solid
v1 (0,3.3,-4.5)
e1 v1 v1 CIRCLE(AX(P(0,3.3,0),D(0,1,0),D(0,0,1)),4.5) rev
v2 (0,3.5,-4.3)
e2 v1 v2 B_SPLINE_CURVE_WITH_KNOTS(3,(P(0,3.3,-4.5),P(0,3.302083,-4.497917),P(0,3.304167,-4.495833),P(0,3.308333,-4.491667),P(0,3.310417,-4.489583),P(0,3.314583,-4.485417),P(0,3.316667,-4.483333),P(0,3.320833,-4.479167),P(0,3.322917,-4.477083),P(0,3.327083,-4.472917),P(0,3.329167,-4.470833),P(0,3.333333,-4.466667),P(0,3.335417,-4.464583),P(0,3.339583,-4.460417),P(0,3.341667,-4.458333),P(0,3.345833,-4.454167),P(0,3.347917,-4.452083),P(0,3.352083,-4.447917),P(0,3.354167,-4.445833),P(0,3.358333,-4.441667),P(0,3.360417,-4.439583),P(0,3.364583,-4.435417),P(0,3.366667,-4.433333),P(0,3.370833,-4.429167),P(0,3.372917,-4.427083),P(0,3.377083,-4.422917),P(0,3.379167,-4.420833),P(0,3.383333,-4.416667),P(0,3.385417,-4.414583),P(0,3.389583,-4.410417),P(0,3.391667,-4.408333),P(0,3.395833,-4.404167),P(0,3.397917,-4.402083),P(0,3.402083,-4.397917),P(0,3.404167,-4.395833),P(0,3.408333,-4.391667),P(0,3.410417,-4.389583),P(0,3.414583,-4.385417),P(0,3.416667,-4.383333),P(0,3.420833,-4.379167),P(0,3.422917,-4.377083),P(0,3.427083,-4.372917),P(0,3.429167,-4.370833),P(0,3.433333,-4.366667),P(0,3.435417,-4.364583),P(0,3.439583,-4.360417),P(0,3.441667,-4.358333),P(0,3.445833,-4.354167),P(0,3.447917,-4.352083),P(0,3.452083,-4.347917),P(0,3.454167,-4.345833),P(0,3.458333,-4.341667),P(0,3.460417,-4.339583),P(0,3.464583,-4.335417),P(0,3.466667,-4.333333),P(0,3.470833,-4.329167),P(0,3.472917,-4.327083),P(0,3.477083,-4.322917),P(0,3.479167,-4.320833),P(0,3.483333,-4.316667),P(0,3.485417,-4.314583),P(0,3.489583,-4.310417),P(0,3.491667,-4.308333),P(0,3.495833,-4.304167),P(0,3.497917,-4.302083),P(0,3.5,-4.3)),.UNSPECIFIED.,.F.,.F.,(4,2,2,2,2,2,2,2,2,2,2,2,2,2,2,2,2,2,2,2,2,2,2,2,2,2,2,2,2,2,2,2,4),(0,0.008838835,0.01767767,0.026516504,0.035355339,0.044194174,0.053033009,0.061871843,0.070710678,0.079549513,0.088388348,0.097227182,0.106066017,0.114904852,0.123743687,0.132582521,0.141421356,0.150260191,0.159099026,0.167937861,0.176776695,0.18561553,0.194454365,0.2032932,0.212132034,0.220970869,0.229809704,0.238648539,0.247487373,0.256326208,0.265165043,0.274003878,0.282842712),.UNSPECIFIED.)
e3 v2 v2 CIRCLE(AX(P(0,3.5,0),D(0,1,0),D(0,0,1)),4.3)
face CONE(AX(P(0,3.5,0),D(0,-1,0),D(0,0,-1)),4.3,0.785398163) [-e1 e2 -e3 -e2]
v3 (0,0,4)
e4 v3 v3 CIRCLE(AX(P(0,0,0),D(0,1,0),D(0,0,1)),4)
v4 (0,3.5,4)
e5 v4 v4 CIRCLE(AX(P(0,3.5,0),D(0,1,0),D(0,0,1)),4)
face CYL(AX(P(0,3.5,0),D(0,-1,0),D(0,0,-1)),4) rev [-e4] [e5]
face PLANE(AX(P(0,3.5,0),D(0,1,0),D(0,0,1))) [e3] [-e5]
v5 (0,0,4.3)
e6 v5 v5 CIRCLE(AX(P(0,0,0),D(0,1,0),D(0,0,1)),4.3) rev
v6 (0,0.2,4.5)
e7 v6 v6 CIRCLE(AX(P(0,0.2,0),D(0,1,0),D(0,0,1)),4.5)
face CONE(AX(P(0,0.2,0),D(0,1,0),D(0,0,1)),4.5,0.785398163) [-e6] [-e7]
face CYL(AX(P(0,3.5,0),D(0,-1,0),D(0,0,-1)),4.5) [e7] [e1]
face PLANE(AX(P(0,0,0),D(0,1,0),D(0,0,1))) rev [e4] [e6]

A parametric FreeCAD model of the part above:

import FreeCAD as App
import Part
import Sketcher
from FreeCAD import Vector
Q = App.Units.Quantity


def edges_at(feature, points):
    """Names of the edges that pass closest to the given points."""
    edges = feature.Shape.Edges
    near = lambda p: min(range(len(edges)), key=lambda i: edges[i].distToShape(Part.Vertex(*p))[0])
    return sorted({f"Edge{near(p) + 1}" for p in points})

doc = App.newDocument("Part")
body = doc.addObject("PartDesign::Body", "Body")

# Sketch on XZ plane
sketch1 = body.newObject("Sketcher::SketchObject", "Sketch")
sketch1.AttachmentSupport = (doc.getObject("XZ_Plane"), [""])
sketch1.MapMode = "FlatFace"
sketch1.addGeometry(Part.Circle(Vector(0, 0, 0), Vector(0, 0, 1), 4.5), False)
sketch1.addGeometry(Part.Circle(Vector(0, 0, 0), Vector(0, 0, 1), 4), False)
sketch1.addConstraint(Sketcher.Constraint("Coincident", 0, 3, -1, 1))
sketch1.addConstraint(Sketcher.Constraint("Coincident", 1, 3, -1, 1))
sketch1.addConstraint(Sketcher.Constraint("Diameter", 0, Q("9 mm")))
sketch1.addConstraint(Sketcher.Constraint("Diameter", 1, Q("8 mm")))
pad1 = body.newObject("PartDesign::Pad", "Pad")
pad1.Profile = sketch1
pad1.Length = 3.5
pad1.Reversed = True
doc.recompute()

chamfer = body.newObject("PartDesign::Chamfer", "Chamfer")
chamfer.Base = (pad1, edges_at(pad1, [(0, 0, -4.5), (0, 3.5, -4.5)]))
chamfer.Size = 0.2

doc.recompute()
